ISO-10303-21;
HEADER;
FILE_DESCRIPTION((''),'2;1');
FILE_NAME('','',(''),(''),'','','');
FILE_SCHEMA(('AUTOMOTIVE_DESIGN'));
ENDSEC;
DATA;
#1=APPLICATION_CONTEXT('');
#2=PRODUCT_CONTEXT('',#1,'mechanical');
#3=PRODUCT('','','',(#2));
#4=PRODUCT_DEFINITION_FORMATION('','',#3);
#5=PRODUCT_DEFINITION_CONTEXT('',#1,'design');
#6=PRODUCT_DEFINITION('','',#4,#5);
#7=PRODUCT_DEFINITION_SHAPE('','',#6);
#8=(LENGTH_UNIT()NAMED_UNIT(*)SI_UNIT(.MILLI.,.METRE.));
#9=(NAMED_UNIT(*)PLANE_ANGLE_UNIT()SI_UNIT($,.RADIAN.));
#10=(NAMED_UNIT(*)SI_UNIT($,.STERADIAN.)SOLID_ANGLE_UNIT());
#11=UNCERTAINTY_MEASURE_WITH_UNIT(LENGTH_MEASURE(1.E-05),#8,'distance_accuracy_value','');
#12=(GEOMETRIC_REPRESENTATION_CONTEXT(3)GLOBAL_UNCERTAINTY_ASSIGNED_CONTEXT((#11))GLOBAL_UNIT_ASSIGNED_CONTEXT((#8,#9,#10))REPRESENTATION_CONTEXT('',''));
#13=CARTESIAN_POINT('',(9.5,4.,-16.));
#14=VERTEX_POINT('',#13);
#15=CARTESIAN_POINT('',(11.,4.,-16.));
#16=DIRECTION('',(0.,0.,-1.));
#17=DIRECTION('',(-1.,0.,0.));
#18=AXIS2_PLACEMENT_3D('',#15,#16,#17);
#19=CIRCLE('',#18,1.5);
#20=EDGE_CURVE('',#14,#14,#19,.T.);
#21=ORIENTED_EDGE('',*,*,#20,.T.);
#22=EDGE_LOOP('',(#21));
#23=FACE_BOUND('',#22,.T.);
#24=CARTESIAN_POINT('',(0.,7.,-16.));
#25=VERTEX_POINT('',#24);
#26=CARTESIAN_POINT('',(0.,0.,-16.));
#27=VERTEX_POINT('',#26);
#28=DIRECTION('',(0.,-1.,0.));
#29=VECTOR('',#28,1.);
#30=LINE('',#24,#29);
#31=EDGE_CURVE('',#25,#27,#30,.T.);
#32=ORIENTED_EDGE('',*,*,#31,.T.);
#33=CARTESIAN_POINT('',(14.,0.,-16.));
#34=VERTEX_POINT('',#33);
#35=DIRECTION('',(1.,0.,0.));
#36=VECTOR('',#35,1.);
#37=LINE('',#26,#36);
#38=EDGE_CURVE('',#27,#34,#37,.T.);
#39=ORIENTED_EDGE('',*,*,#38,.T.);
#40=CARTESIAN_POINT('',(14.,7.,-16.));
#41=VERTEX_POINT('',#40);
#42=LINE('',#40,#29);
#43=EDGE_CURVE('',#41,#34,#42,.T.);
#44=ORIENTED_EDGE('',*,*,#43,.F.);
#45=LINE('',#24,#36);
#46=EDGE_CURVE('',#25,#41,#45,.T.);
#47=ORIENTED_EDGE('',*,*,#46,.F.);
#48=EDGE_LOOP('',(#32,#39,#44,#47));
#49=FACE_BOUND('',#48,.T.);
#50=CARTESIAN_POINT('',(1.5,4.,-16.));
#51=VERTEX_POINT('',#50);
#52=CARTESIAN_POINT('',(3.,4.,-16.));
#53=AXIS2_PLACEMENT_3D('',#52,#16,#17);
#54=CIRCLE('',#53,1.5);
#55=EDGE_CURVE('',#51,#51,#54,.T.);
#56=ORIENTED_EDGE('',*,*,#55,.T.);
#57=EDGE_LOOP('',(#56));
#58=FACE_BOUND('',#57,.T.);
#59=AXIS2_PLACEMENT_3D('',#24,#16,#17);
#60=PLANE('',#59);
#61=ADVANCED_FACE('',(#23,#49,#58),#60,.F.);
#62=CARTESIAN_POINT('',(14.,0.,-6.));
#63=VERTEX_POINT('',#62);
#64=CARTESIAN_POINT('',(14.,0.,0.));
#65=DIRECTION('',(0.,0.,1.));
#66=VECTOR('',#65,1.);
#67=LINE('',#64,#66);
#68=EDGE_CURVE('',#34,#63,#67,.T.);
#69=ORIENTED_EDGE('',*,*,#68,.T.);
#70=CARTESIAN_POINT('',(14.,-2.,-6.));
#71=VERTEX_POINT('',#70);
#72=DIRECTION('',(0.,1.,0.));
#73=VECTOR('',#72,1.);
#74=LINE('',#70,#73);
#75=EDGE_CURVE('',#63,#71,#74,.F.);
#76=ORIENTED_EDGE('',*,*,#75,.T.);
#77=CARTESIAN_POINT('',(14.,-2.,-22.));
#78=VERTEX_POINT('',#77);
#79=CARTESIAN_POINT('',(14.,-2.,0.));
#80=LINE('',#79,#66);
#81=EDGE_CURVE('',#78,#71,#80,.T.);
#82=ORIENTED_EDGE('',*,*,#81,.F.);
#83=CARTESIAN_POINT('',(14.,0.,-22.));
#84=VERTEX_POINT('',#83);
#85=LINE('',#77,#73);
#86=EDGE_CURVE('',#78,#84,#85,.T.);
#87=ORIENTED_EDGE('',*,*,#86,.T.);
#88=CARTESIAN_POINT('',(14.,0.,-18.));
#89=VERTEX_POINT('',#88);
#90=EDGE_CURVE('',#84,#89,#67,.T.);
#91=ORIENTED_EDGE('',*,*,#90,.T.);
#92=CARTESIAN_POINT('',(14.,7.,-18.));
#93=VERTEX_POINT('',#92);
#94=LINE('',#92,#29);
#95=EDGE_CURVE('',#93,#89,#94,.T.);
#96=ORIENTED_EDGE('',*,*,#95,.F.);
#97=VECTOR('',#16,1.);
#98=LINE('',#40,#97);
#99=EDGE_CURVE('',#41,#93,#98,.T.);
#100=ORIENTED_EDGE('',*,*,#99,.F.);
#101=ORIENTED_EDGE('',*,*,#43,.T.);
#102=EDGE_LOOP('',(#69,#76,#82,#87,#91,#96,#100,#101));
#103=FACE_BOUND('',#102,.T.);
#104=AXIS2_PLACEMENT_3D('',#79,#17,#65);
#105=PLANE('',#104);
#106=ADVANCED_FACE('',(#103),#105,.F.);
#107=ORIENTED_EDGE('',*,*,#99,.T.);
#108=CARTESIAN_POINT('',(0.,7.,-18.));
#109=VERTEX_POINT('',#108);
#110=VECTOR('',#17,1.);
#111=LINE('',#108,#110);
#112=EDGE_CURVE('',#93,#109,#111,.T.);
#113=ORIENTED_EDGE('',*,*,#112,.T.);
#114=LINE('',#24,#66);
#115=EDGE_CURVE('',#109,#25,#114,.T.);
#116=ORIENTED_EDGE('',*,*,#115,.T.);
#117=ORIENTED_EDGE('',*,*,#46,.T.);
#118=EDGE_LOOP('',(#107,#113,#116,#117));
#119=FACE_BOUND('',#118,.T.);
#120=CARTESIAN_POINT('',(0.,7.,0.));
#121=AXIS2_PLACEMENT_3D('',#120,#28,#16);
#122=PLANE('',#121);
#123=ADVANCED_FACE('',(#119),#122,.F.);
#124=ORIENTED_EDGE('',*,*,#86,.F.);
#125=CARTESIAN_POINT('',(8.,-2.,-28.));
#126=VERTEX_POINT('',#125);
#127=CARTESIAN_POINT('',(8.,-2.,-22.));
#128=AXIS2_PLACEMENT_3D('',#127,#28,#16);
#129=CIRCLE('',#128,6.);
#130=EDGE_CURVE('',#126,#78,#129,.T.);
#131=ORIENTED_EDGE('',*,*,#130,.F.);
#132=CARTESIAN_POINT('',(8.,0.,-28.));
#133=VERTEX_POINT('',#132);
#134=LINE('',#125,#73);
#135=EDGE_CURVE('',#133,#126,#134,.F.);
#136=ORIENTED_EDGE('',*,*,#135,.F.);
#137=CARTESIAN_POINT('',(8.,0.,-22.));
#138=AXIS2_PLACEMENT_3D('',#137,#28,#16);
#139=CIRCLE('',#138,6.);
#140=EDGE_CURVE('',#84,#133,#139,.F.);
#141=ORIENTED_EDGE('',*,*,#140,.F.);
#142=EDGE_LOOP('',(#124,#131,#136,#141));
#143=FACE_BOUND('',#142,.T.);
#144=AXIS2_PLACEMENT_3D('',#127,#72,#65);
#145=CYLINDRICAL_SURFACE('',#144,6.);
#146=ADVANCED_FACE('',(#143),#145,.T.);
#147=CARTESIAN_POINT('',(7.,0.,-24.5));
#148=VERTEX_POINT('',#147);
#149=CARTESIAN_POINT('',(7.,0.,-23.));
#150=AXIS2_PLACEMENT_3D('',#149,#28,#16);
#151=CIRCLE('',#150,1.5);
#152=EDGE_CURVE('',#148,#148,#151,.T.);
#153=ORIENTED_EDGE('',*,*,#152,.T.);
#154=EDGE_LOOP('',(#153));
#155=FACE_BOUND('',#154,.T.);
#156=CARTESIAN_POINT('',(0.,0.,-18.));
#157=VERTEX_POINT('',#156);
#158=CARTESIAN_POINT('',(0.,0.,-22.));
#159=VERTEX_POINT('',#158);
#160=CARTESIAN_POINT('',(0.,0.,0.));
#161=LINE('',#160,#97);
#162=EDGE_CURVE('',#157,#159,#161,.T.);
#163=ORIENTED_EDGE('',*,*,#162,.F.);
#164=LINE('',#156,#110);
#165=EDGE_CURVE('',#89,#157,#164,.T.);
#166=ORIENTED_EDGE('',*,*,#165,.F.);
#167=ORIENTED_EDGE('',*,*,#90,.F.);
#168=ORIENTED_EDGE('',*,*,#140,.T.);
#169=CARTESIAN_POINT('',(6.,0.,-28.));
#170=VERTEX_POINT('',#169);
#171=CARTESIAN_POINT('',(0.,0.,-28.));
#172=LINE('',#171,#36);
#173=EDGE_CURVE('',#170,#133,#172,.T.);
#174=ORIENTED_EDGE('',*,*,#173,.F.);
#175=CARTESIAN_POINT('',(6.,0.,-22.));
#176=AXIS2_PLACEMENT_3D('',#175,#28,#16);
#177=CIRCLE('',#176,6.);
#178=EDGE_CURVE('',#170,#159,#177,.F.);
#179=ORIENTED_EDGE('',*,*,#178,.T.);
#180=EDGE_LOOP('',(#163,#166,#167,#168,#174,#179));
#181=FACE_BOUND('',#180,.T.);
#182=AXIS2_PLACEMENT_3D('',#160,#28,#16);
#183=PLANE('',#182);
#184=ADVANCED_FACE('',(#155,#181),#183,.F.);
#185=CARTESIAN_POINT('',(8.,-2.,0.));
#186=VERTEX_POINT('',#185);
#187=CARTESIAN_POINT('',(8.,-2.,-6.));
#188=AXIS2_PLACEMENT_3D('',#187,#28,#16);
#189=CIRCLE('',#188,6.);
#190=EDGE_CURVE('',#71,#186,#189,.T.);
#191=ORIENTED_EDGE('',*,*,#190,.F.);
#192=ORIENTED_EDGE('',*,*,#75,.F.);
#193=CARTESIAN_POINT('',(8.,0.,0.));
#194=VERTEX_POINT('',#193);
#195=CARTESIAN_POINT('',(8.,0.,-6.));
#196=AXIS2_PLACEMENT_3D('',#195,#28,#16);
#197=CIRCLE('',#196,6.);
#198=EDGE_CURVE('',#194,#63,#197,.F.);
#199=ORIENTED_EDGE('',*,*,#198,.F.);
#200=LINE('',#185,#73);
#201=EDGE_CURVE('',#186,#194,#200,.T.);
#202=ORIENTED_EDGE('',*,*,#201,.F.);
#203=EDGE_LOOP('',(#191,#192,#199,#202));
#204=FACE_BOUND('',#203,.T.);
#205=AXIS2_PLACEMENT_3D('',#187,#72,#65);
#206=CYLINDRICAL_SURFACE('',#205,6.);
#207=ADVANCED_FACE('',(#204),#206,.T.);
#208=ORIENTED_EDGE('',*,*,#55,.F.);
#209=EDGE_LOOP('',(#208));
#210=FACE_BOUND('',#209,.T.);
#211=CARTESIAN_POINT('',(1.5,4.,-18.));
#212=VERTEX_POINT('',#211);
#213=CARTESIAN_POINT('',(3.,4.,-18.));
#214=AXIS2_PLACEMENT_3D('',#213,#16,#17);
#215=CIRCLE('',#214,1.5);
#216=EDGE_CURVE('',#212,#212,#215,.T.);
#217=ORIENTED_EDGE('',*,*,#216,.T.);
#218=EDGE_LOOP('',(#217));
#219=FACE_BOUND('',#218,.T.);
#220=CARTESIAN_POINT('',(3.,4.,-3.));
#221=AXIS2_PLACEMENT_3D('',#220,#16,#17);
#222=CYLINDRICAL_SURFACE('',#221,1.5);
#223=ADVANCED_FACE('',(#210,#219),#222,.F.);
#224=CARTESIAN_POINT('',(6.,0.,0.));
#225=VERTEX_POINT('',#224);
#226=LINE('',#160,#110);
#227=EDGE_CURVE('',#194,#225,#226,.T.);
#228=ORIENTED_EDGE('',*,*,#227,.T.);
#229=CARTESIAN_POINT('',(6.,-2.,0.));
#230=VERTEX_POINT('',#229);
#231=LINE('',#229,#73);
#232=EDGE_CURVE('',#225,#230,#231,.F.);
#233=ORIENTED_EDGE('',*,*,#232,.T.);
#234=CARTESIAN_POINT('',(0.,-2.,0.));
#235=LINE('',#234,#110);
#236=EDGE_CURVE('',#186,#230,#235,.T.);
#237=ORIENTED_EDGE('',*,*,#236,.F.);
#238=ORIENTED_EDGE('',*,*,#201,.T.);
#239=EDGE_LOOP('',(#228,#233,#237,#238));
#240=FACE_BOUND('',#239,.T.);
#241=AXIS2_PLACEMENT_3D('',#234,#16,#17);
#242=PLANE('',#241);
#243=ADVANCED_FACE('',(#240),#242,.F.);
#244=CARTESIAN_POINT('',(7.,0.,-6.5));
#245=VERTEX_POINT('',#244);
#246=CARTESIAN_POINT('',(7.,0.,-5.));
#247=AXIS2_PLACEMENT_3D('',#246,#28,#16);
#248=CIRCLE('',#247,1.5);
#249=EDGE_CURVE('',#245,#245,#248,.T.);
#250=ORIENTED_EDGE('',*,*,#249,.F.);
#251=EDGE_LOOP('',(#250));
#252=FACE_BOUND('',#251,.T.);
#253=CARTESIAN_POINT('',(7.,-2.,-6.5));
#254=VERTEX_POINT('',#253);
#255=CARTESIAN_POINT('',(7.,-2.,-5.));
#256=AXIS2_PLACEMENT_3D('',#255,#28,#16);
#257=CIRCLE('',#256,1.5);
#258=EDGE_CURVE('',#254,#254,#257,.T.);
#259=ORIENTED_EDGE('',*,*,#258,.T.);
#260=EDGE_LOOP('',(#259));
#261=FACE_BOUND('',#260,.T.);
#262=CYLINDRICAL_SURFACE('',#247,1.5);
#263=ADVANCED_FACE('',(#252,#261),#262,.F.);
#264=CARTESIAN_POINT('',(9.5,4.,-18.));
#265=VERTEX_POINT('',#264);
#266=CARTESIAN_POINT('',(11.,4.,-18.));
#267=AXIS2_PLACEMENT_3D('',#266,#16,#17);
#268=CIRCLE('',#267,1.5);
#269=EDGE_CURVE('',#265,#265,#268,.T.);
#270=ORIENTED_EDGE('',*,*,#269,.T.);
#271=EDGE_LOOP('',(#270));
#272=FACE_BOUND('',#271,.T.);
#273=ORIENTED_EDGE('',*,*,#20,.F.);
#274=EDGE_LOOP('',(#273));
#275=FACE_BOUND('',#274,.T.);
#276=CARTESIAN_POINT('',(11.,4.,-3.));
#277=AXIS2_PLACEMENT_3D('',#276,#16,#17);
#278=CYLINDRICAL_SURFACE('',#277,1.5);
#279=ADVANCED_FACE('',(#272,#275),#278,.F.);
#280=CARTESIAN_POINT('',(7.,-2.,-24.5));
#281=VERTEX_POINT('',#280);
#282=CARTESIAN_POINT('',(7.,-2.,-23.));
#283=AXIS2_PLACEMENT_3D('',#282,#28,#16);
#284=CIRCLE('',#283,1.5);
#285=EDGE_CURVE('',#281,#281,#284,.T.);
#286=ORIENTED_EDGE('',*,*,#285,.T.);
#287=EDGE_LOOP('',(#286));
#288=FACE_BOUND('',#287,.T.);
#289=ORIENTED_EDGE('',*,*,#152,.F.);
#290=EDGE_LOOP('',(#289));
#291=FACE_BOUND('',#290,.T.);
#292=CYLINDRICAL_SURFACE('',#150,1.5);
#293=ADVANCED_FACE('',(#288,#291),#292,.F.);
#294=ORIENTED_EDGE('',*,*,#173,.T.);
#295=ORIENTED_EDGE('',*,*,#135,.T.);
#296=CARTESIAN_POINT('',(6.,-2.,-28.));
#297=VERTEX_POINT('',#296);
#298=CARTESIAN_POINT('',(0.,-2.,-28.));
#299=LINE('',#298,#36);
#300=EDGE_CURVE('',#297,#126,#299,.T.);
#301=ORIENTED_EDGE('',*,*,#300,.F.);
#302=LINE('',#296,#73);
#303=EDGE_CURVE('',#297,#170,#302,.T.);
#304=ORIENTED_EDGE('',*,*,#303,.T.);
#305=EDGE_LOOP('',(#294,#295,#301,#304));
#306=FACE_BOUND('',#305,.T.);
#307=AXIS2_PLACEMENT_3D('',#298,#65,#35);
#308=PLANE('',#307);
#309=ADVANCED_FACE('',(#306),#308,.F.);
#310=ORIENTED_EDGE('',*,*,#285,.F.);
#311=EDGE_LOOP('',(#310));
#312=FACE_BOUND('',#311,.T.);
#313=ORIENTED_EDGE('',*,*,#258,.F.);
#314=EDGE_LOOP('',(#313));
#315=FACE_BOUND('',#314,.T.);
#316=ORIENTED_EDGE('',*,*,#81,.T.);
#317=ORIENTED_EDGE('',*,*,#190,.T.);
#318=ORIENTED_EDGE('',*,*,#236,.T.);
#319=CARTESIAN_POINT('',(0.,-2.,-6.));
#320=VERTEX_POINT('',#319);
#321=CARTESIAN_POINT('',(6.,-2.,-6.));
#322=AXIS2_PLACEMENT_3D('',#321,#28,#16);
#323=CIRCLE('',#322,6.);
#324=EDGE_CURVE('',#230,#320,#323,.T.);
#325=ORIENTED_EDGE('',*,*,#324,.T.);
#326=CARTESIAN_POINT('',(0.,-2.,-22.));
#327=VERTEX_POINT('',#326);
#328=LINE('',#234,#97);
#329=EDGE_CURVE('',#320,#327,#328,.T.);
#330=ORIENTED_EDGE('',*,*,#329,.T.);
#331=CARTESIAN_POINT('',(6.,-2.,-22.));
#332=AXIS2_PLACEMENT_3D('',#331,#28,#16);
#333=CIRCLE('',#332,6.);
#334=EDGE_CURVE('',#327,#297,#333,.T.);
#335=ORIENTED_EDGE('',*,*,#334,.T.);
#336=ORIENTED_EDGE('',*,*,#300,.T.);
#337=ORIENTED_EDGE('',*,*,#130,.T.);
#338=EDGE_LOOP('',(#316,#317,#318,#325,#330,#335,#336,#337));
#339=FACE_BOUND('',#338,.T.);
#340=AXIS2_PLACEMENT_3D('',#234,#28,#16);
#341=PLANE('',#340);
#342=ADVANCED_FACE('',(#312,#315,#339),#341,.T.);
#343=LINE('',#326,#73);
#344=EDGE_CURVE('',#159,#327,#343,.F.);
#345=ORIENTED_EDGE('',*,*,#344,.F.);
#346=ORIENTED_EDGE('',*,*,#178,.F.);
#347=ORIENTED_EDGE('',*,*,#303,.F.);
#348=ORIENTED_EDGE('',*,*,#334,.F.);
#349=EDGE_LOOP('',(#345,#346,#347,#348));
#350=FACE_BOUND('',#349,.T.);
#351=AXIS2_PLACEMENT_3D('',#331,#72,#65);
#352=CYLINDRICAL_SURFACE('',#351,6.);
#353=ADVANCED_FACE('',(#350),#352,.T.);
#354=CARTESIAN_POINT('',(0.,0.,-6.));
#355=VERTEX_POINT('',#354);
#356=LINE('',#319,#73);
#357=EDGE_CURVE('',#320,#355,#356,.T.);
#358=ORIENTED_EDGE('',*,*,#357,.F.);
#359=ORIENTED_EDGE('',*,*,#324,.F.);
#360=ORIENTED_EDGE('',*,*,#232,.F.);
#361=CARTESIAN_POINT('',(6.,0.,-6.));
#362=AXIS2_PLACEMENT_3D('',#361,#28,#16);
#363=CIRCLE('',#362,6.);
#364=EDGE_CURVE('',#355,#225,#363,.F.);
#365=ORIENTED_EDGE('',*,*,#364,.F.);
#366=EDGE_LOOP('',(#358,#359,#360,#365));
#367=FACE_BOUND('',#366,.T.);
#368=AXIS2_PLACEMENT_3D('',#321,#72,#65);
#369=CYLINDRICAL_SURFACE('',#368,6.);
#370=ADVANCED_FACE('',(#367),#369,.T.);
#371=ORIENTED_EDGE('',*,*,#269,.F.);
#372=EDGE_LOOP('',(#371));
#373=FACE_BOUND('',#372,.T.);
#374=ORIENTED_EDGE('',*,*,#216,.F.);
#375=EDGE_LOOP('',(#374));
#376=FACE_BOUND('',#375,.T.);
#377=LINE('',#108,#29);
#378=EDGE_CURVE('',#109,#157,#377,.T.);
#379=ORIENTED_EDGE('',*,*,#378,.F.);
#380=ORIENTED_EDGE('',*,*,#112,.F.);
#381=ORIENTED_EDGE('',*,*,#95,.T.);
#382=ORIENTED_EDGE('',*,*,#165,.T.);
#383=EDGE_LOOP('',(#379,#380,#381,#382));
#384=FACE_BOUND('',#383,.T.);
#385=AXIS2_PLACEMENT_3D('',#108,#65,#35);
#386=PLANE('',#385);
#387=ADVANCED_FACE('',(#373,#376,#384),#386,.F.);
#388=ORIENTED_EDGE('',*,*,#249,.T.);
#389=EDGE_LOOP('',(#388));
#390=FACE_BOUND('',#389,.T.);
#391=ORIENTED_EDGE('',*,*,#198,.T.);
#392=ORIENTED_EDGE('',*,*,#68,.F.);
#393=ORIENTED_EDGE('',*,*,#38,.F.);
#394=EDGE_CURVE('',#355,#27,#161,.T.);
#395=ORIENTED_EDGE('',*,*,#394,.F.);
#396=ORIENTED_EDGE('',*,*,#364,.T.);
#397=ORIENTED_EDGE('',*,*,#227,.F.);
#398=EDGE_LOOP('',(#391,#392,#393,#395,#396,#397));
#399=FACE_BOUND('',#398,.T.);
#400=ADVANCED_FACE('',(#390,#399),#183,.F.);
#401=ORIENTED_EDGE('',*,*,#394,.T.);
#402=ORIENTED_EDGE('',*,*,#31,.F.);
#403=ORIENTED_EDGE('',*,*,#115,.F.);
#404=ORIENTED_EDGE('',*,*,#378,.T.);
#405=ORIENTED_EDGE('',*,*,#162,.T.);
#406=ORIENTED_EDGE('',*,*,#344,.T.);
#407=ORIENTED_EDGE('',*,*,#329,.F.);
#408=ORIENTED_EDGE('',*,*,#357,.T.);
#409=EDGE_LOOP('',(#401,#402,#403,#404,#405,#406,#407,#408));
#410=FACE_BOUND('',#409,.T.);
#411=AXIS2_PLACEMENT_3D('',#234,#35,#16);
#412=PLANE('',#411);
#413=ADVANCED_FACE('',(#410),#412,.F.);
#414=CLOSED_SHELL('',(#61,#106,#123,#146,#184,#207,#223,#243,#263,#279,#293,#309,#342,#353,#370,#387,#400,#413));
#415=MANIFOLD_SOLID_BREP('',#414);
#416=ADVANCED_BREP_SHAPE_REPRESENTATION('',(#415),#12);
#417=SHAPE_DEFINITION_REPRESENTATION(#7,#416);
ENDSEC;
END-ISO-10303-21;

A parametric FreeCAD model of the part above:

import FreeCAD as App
import Part
import Sketcher
from FreeCAD import Vector
Q = App.Units.Quantity


def edges_at(feature, points):
    """Names of the edges that pass closest to the given points."""
    edges = feature.Shape.Edges
    near = lambda p: min(range(len(edges)), key=lambda i: edges[i].distToShape(Part.Vertex(*p))[0])
    return sorted({f"Edge{near(p) + 1}" for p in points})

doc = App.newDocument("Part")
body = doc.addObject("PartDesign::Body", "Body")

# Sketch on XZ plane
sketch1 = body.newObject("Sketcher::SketchObject", "Sketch")
sketch1.AttachmentSupport = (doc.getObject("XZ_Plane"), [""])
sketch1.MapMode = "FlatFace"
sketch1.addGeometry([
    Part.LineSegment(Vector(0, 0, 0), Vector(0, -28, 0)),
    Part.LineSegment(Vector(0, -28, 0), Vector(14, -28, 0)),
    Part.LineSegment(Vector(14, -28, 0), Vector(14, 0, 0)),
    Part.LineSegment(Vector(14, 0, 0), Vector(0, 0, 0)),
], False)
sketch1.addConstraint([
    Sketcher.Constraint("Coincident", 0, 2, 1, 1),
    Sketcher.Constraint("Coincident", 1, 2, 2, 1),
    Sketcher.Constraint("Coincident", 2, 2, 3, 1),
    Sketcher.Constraint("Coincident", 3, 2, 0, 1),
    Sketcher.Constraint("Vertical", 0),
    Sketcher.Constraint("Horizontal", 1),
    Sketcher.Constraint("Vertical", 2),
    Sketcher.Constraint("Horizontal", 3),
    Sketcher.Constraint("Coincident", 3, 2, -1, 1),
    Sketcher.Constraint("DistanceX", 1, 1, 1, 2, Q("14 mm")),
    Sketcher.Constraint("DistanceY", 0, 2, 0, 1, Q("28 mm")),
])
pad1 = body.newObject("PartDesign::Pad", "Pad")
pad1.Profile = sketch1
pad1.Length = 2

# Sketch on XZ plane
sketch2 = body.newObject("Sketcher::SketchObject", "Sketch001")
sketch2.AttachmentSupport = (doc.getObject("XZ_Plane"), [""])
sketch2.MapMode = "FlatFace"
sketch2.AttachmentOffset = App.Placement(Vector(0, 0, 2), App.Rotation())
sketch2.addGeometry([
    Part.Circle(Vector(7, -5, 0), Vector(0, 0, 1), 1.5),
    Part.Circle(Vector(7, -23, 0), Vector(0, 0, 1), 1.5),
], False)
sketch2.addConstraint([
    Sketcher.Constraint("Equal", 0, 1),
    Sketcher.Constraint("Vertical", 0, 3, 1, 3),
    Sketcher.Constraint("Diameter", 0, Q("3 mm")),
    Sketcher.Constraint("DistanceX", -1, 1, 0, 3, Q("7 mm")),
    Sketcher.Constraint("DistanceY", 0, 3, -1, 1, Q("5 mm")),
    Sketcher.Constraint("DistanceY", 1, 3, -1, 1, Q("23 mm")),
])
pocket1 = body.newObject("PartDesign::Pocket", "Pocket")
pocket1.Profile = sketch2
pocket1.Length = 2

# Sketch on XZ plane
sketch3 = body.newObject("Sketcher::SketchObject", "Sketch002")
sketch3.AttachmentSupport = (doc.getObject("XZ_Plane"), [""])
sketch3.MapMode = "FlatFace"
sketch3.addGeometry([
    Part.LineSegment(Vector(0, -18, 0), Vector(0, -16, 0)),
    Part.LineSegment(Vector(0, -16, 0), Vector(14, -16, 0)),
    Part.LineSegment(Vector(14, -16, 0), Vector(14, -18, 0)),
    Part.LineSegment(Vector(14, -18, 0), Vector(0, -18, 0)),
], False)
sketch3.addConstraint([
    Sketcher.Constraint("Coincident", 0, 2, 1, 1),
    Sketcher.Constraint("Coincident", 1, 2, 2, 1),
    Sketcher.Constraint("Coincident", 2, 2, 3, 1),
    Sketcher.Constraint("Coincident", 3, 2, 0, 1),
    Sketcher.Constraint("Vertical", 0),
    Sketcher.Constraint("Horizontal", 1),
    Sketcher.Constraint("Vertical", 2),
    Sketcher.Constraint("Horizontal", 3),
    Sketcher.Constraint("PointOnObject", 0, 2, -2),
    Sketcher.Constraint("DistanceX", 1, 1, 1, 2, Q("14 mm")),
    Sketcher.Constraint("DistanceY", 0, 1, 0, 2, Q("2 mm")),
    Sketcher.Constraint("DistanceY", 0, 2, -1, 1, Q("16 mm")),
])
pad2 = body.newObject("PartDesign::Pad", "Pad001")
pad2.Profile = sketch3
pad2.Length = 7
pad2.Reversed = True
doc.recompute()

fillet = body.newObject("PartDesign::Fillet", "Fillet")
fillet.Base = (pad2, edges_at(pad2, [
    (0, -1, 0),
    (14, -1, 0),
    (14, -1, -28),
    (0, -1, -28),
]))
fillet.Radius = 6

# Sketch on XY plane
sketch4 = body.newObject("Sketcher::SketchObject", "Sketch003")
sketch4.AttachmentSupport = (doc.getObject("XY_Plane"), [""])
sketch4.MapMode = "FlatFace"
sketch4.AttachmentOffset = App.Placement(Vector(0, 0, -18), App.Rotation())
sketch4.addGeometry([
    Part.Circle(Vector(11, 4, 0), Vector(0, 0, 1), 1.5),
    Part.Circle(Vector(3, 4, 0), Vector(0, 0, 1), 1.5),
], False)
sketch4.addConstraint([
    Sketcher.Constraint("Equal", 0, 1),
    Sketcher.Constraint("Horizontal", 0, 3, 1, 3),
    Sketcher.Constraint("Diameter", 0, Q("3 mm")),
    Sketcher.Constraint("DistanceX", -1, 1, 0, 3, Q("11 mm")),
    Sketcher.Constraint("DistanceY", -1, 1, 0, 3, Q("4 mm")),
    Sketcher.Constraint("DistanceX", -1, 1, 1, 3, Q("3 mm")),
])
pocket2 = body.newObject("PartDesign::Pocket", "Pocket001")
pocket2.Profile = sketch4
pocket2.Length = 15
pocket2.Reversed = True

doc.recompute()
